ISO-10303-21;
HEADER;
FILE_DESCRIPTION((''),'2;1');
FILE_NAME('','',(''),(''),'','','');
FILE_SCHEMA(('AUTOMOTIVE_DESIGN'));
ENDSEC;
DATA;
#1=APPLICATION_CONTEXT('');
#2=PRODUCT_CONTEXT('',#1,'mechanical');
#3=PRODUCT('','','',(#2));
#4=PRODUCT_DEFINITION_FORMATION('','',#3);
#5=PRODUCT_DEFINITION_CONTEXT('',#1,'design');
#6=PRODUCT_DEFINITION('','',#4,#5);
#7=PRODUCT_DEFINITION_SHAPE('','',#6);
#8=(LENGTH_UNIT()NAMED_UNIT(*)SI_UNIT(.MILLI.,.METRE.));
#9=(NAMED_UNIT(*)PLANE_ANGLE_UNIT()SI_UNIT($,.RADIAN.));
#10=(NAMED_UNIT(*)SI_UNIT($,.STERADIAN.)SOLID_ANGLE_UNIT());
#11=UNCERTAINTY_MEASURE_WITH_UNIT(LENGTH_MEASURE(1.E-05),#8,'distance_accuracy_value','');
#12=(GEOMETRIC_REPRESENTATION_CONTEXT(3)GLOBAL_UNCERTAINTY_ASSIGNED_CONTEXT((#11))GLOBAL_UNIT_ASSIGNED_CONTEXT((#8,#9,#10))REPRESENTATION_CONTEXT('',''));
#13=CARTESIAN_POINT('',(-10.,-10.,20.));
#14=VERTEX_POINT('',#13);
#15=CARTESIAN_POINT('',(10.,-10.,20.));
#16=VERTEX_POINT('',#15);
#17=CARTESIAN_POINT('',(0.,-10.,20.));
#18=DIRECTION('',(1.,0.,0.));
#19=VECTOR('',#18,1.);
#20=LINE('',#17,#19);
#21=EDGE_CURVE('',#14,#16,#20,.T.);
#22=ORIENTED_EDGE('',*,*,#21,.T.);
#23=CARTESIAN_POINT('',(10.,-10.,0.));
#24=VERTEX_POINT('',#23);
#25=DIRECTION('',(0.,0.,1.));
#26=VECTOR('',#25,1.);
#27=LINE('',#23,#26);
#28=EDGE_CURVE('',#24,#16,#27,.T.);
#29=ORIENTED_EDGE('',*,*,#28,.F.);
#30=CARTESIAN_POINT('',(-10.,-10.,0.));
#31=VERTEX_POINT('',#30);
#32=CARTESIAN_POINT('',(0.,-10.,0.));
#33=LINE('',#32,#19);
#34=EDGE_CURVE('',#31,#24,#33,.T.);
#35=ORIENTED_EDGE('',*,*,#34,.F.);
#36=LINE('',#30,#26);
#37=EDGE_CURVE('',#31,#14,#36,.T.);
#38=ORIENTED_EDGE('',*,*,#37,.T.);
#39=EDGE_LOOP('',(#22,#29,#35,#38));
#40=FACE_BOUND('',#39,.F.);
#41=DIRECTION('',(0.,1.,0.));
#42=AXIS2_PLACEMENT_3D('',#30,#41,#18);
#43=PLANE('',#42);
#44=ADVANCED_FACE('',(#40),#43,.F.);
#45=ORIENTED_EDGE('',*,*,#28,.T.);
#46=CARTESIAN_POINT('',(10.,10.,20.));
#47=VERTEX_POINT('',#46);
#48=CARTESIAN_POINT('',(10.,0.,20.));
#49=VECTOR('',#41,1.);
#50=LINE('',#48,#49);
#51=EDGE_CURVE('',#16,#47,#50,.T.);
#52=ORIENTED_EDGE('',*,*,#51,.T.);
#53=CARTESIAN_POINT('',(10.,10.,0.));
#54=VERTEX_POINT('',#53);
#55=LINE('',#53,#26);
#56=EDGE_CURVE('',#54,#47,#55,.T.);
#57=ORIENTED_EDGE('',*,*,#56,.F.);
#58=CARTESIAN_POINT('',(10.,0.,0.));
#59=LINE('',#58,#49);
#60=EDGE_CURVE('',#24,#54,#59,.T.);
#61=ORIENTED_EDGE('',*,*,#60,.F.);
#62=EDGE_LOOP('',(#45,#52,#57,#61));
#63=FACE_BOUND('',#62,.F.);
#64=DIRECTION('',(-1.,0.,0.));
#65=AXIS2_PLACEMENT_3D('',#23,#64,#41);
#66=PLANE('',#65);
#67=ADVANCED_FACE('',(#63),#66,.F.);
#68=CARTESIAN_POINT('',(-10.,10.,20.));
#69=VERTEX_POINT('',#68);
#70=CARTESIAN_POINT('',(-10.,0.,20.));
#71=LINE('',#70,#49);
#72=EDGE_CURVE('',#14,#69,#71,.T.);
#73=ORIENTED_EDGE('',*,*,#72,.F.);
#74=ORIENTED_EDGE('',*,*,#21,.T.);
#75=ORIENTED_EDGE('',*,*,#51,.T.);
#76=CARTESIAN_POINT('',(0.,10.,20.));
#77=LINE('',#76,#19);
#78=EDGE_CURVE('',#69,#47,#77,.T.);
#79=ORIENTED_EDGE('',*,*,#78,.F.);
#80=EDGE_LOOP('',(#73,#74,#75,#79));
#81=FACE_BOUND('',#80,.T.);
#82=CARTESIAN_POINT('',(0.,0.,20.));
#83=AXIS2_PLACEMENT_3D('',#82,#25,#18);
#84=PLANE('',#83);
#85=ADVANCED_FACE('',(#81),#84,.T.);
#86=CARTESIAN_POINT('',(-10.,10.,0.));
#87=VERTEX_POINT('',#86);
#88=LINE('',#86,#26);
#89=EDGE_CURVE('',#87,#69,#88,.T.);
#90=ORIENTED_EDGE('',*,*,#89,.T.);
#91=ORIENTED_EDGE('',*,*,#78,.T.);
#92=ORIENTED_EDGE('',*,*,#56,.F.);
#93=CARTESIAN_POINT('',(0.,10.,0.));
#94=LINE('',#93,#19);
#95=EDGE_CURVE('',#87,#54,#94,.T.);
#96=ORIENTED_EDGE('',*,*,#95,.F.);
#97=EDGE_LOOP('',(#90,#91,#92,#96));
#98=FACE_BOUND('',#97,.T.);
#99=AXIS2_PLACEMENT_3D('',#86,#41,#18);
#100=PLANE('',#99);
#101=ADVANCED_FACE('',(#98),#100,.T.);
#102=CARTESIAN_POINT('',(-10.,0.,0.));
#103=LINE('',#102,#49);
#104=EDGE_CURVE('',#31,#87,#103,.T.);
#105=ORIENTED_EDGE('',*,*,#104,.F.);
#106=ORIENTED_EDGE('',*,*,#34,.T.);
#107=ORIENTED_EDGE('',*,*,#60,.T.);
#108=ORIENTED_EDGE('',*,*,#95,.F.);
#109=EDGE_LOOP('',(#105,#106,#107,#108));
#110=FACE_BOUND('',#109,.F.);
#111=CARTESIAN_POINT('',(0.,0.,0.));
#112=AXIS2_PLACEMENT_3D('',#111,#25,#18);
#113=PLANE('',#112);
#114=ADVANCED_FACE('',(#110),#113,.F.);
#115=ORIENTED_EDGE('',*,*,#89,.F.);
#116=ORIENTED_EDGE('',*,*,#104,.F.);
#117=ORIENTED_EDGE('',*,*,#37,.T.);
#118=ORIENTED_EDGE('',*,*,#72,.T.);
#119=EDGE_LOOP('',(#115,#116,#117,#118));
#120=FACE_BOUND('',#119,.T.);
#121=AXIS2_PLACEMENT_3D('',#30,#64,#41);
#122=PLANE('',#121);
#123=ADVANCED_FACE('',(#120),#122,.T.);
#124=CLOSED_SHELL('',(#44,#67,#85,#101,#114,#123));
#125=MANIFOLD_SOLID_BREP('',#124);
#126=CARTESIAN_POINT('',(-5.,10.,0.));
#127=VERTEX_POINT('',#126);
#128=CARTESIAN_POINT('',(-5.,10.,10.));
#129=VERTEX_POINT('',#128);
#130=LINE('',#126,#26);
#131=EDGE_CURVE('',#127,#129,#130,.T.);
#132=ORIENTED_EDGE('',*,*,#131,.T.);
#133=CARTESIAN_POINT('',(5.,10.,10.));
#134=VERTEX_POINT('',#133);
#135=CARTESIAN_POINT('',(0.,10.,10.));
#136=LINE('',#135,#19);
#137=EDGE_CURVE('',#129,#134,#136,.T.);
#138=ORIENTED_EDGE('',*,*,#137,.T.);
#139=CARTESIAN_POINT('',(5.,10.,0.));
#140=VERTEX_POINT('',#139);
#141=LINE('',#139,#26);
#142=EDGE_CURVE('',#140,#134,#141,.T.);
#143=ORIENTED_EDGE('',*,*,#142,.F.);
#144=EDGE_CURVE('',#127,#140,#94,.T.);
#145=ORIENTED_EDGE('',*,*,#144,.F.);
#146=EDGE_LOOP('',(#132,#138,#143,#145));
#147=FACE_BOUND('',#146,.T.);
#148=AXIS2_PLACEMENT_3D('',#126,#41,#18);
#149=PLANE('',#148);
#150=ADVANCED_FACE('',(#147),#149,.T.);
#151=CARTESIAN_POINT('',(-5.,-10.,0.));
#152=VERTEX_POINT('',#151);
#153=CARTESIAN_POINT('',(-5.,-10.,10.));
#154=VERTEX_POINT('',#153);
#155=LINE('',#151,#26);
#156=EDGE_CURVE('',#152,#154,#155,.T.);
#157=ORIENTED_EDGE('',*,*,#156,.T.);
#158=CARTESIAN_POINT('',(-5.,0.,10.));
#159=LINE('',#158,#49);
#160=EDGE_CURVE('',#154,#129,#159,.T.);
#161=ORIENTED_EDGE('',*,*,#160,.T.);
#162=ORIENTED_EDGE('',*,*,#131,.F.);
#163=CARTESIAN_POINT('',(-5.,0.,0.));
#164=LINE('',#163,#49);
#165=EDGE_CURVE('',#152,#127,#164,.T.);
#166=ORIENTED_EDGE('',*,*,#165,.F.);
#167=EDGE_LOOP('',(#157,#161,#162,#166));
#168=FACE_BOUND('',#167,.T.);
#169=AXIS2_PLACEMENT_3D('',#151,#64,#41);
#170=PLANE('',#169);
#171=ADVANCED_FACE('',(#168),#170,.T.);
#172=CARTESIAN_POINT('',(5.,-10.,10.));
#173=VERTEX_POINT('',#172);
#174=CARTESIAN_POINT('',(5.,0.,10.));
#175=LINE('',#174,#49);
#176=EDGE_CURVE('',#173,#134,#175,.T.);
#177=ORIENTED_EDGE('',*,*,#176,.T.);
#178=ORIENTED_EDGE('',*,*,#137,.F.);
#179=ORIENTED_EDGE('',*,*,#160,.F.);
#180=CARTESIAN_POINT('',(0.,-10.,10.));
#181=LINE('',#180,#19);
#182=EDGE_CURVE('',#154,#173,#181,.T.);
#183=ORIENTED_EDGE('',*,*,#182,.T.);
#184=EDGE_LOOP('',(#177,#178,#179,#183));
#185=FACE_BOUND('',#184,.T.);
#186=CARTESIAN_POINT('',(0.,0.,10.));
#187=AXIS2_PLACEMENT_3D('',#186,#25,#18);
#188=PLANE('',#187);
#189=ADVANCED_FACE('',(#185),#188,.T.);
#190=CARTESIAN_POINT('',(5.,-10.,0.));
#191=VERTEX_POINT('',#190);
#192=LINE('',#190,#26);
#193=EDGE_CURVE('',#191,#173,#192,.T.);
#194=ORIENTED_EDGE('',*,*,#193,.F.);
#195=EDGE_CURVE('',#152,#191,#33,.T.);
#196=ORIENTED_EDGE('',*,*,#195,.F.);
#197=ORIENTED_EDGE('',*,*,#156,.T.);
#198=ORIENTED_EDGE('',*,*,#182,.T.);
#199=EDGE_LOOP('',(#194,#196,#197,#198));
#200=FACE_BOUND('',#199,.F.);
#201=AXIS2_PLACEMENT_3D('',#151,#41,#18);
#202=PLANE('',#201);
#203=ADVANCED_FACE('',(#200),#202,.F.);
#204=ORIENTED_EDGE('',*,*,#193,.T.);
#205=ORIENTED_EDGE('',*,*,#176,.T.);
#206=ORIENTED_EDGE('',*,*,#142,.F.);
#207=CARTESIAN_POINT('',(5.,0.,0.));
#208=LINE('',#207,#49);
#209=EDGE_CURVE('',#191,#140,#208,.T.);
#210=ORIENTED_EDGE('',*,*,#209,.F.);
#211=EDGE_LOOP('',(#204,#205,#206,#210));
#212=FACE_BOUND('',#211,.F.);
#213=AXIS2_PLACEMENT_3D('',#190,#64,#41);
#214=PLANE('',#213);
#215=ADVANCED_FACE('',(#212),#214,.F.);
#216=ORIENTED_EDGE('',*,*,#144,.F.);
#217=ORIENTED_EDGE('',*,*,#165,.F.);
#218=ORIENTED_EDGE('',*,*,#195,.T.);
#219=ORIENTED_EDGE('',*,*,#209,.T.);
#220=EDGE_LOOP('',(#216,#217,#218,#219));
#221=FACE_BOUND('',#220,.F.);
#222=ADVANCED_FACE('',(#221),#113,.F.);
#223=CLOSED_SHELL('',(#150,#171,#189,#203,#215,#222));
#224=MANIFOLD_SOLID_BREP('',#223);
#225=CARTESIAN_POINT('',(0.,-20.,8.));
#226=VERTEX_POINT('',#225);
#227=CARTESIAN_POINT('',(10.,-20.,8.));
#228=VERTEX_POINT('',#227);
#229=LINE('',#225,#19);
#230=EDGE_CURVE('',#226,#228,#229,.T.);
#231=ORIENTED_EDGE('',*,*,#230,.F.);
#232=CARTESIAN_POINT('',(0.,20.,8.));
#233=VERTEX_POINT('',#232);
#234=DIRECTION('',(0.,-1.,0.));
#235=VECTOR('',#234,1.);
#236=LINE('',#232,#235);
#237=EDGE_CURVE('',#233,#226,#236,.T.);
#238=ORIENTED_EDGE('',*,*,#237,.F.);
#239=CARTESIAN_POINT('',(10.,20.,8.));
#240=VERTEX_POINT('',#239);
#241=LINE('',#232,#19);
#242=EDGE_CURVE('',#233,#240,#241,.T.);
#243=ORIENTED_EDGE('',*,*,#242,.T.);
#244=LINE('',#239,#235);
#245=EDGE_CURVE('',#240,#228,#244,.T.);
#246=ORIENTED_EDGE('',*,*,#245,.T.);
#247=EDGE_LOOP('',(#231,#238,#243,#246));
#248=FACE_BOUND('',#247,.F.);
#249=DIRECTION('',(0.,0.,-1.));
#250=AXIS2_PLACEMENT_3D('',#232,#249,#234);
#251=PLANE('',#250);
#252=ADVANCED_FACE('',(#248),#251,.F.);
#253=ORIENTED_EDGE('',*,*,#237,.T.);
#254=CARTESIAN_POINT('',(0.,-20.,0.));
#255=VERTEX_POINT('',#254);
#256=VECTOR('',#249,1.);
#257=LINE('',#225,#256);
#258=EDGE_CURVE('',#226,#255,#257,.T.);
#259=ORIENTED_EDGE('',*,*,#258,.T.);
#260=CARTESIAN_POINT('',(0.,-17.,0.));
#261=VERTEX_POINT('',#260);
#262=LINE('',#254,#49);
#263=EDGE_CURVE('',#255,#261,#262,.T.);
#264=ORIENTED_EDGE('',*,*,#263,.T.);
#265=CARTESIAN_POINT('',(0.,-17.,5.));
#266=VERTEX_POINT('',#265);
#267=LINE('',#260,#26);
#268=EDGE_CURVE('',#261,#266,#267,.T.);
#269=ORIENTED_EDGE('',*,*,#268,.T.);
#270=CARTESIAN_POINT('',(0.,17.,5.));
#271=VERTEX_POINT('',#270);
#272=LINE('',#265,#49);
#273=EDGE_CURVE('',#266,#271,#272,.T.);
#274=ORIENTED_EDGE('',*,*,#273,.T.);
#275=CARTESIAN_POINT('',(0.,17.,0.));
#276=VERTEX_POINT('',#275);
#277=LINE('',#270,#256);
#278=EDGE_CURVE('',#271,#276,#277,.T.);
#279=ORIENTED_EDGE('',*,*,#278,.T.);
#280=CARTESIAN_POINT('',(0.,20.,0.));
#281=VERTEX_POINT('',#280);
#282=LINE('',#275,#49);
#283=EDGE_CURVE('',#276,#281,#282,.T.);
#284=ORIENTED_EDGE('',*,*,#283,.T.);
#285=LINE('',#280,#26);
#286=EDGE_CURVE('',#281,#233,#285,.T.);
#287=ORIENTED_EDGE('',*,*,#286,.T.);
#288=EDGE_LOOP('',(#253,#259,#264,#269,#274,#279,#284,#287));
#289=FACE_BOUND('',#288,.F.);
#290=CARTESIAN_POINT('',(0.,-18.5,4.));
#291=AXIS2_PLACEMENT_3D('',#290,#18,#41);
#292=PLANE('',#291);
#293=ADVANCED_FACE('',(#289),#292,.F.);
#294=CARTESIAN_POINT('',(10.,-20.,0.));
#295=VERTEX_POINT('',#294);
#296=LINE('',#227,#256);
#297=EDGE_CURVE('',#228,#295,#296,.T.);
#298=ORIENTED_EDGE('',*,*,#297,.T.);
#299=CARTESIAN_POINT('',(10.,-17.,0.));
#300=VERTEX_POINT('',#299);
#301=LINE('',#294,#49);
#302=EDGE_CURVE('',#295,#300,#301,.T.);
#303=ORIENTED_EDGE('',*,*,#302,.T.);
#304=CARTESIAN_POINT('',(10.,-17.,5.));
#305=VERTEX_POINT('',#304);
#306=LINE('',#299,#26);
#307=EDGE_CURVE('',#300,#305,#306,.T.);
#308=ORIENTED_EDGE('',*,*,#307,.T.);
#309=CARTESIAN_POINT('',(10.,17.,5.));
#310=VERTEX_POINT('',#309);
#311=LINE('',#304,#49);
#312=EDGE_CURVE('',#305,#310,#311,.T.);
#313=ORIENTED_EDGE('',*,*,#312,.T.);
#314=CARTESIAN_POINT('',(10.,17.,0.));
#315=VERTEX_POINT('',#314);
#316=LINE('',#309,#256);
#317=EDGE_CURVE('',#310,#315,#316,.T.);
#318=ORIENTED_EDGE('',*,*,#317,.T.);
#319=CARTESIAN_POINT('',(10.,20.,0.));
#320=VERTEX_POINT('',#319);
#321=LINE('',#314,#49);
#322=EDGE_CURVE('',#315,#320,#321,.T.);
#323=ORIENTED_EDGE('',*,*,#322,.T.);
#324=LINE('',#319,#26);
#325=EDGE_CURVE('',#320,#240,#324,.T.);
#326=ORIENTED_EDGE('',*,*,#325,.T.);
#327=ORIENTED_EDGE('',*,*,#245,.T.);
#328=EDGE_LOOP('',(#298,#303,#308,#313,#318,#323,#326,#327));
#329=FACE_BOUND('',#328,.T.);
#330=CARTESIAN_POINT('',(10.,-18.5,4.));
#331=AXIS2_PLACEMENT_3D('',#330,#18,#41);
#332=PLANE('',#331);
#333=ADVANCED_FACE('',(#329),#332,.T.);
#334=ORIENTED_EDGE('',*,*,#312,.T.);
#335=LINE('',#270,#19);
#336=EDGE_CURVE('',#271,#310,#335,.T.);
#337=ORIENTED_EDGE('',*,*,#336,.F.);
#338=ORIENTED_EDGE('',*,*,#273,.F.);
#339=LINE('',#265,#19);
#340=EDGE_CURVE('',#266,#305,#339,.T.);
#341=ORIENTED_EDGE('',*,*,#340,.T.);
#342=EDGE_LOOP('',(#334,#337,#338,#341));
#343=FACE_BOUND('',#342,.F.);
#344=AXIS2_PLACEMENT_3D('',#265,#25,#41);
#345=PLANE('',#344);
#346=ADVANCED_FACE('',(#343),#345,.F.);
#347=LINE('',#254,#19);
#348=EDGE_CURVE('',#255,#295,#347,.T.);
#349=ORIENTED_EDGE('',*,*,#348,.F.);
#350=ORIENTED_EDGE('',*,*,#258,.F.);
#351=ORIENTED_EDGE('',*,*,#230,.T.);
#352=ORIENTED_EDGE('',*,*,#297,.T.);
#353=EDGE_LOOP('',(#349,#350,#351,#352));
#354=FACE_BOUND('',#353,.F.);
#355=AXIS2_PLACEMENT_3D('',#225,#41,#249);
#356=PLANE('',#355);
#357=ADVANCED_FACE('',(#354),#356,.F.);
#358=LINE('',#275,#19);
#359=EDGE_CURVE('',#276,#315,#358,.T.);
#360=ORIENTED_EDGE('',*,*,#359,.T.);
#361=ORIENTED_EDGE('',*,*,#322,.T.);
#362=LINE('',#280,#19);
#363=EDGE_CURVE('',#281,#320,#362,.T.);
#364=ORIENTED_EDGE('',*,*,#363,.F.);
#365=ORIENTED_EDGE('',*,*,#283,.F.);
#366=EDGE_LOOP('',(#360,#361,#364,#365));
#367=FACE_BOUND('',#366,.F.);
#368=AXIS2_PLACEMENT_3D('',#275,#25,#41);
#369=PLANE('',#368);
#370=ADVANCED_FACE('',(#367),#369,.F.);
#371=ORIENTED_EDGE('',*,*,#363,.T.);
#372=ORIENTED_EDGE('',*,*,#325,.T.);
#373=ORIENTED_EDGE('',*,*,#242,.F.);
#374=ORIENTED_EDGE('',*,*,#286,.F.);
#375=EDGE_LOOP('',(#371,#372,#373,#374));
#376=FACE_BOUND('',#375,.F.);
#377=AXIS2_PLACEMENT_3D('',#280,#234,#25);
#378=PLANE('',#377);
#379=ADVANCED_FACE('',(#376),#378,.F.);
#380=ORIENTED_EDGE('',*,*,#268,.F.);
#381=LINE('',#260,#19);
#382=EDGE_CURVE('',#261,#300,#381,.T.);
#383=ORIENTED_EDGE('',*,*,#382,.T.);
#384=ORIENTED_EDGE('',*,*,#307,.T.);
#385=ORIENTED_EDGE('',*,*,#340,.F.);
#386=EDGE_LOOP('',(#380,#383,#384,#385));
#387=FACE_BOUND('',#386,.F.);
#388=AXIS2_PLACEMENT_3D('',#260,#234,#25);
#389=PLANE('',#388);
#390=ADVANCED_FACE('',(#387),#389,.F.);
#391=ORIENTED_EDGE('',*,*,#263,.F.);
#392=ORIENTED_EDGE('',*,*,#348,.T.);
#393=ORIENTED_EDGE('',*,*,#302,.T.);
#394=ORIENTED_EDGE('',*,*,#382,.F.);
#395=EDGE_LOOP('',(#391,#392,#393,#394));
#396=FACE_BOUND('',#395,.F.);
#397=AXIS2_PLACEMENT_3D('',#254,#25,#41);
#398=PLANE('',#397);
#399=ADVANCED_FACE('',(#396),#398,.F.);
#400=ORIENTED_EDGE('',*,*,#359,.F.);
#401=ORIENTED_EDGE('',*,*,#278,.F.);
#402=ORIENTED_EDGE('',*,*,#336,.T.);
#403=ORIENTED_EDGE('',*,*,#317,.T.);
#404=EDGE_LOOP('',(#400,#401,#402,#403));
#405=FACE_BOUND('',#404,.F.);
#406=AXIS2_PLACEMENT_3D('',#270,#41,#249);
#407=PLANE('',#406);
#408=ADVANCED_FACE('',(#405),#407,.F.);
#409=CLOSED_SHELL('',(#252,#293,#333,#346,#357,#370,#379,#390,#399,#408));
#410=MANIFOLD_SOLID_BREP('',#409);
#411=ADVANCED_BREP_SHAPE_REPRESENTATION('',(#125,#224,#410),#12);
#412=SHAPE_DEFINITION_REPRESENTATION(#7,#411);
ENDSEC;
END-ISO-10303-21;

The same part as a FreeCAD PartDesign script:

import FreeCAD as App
import Part
import Sketcher
Q = App.Units.Quantity


def add_polygon(sketch, points):
    """Adds a closed chain of lines whose ends are joined by coincident constraints."""
    first, n = sketch.GeometryCount, len(points)
    for a, b in zip(points, points[1:] + points[:1]):
        sketch.addGeometry(Part.LineSegment(App.Vector(*a, 0), App.Vector(*b, 0)), False)
    for i in range(n):
        sketch.addConstraint(Sketcher.Constraint("Coincident", first + i, 2, first + (i + 1) % n, 1))

doc = App.newDocument("Part")
body = doc.addObject("PartDesign::Body", "Body")

# Sketch on XY plane
sketch1 = body.newObject("Sketcher::SketchObject", "Sketch")
sketch1.AttachmentSupport = (doc.getObject("XY_Plane"), [""])
sketch1.MapMode = "FlatFace"
add_polygon(sketch1, [(-10, 10), (-10, -10), (10, -10), (10, 10)])  # lines 0-3
sketch1.addConstraint([
    Sketcher.Constraint("Vertical", 0),
    Sketcher.Constraint("Horizontal", 1),
    Sketcher.Constraint("Vertical", 2),
    Sketcher.Constraint("Horizontal", 3),
    Sketcher.Constraint("Symmetric", 0, 2, 2, 2, -1, 1),
    Sketcher.Constraint("Equal", 3, 0),
    Sketcher.Constraint("DistanceX", 1, 1, 1, 2, Q("20 mm")),
])
pad1 = body.newObject("PartDesign::Pad", "Pad")
pad1.Profile = sketch1
pad1.Length = 20
body2 = doc.addObject("PartDesign::Body", "Body001")

# Sketch on XY plane
sketch2 = body2.newObject("Sketcher::SketchObject", "Sketch001")
sketch2.AttachmentSupport = (doc.getObject("XY_Plane001"), [""])
sketch2.MapMode = "FlatFace"
add_polygon(sketch2, [(-5, 10), (-5, -10), (5, -10), (5, 10)])  # lines 0-3
sketch2.addConstraint([
    Sketcher.Constraint("Vertical", 0),
    Sketcher.Constraint("Horizontal", 1),
    Sketcher.Constraint("Vertical", 2),
    Sketcher.Constraint("Horizontal", 3),
    Sketcher.Constraint("Symmetric", 0, 2, 2, 2, -1, 1),
    Sketcher.Constraint("DistanceX", 1, 1, 1, 2, Q("10 mm")),
    Sketcher.Constraint("DistanceY", 0, 2, 0, 1, Q("20 mm")),
])
pad2 = body2.newObject("PartDesign::Pad", "Pad001")
pad2.Profile = sketch2
pad2.Length = 10
body3 = doc.addObject("PartDesign::Body", "Body002")

# Sketch on YZ plane
sketch3 = body3.newObject("Sketcher::SketchObject", "Sketch002")
sketch3.AttachmentSupport = (doc.getObject("YZ_Plane002"), [""])
sketch3.MapMode = "FlatFace"
add_polygon(sketch3, [(-20, 8), (-20, 0), (-17, 0), (-17, 5), (17, 5), (17, 0), (20, 0), (20, 8)])  # lines 0-7
sketch3.addConstraint([
    Sketcher.Constraint("Vertical", 0),
    Sketcher.Constraint("Horizontal", 1),
    Sketcher.Constraint("Vertical", 2),
    Sketcher.Constraint("Horizontal", 3),
    Sketcher.Constraint("Vertical", 4),
    Sketcher.Constraint("Horizontal", 5),
    Sketcher.Constraint("Vertical", 6),
    Sketcher.Constraint("Horizontal", 7),
    Sketcher.Constraint("Symmetric", 1, 2, 4, 2, -1, 1),
    Sketcher.Constraint("Symmetric", 0, 2, 5, 2, -2),
    Sketcher.Constraint("DistanceX", 1, 1, 1, 2, Q("3 mm")),
    Sketcher.Constraint("DistanceX", 3, 1, 3, 2, Q("34 mm")),
    Sketcher.Constraint("DistanceY", 0, 2, 0, 1, Q("8 mm")),
    Sketcher.Constraint("DistanceY", 2, 1, 2, 2, Q("5 mm")),
])
pad3 = body3.newObject("PartDesign::Pad", "Pad002")
pad3.Profile = sketch3
pad3.Length = 10

doc.recompute()
